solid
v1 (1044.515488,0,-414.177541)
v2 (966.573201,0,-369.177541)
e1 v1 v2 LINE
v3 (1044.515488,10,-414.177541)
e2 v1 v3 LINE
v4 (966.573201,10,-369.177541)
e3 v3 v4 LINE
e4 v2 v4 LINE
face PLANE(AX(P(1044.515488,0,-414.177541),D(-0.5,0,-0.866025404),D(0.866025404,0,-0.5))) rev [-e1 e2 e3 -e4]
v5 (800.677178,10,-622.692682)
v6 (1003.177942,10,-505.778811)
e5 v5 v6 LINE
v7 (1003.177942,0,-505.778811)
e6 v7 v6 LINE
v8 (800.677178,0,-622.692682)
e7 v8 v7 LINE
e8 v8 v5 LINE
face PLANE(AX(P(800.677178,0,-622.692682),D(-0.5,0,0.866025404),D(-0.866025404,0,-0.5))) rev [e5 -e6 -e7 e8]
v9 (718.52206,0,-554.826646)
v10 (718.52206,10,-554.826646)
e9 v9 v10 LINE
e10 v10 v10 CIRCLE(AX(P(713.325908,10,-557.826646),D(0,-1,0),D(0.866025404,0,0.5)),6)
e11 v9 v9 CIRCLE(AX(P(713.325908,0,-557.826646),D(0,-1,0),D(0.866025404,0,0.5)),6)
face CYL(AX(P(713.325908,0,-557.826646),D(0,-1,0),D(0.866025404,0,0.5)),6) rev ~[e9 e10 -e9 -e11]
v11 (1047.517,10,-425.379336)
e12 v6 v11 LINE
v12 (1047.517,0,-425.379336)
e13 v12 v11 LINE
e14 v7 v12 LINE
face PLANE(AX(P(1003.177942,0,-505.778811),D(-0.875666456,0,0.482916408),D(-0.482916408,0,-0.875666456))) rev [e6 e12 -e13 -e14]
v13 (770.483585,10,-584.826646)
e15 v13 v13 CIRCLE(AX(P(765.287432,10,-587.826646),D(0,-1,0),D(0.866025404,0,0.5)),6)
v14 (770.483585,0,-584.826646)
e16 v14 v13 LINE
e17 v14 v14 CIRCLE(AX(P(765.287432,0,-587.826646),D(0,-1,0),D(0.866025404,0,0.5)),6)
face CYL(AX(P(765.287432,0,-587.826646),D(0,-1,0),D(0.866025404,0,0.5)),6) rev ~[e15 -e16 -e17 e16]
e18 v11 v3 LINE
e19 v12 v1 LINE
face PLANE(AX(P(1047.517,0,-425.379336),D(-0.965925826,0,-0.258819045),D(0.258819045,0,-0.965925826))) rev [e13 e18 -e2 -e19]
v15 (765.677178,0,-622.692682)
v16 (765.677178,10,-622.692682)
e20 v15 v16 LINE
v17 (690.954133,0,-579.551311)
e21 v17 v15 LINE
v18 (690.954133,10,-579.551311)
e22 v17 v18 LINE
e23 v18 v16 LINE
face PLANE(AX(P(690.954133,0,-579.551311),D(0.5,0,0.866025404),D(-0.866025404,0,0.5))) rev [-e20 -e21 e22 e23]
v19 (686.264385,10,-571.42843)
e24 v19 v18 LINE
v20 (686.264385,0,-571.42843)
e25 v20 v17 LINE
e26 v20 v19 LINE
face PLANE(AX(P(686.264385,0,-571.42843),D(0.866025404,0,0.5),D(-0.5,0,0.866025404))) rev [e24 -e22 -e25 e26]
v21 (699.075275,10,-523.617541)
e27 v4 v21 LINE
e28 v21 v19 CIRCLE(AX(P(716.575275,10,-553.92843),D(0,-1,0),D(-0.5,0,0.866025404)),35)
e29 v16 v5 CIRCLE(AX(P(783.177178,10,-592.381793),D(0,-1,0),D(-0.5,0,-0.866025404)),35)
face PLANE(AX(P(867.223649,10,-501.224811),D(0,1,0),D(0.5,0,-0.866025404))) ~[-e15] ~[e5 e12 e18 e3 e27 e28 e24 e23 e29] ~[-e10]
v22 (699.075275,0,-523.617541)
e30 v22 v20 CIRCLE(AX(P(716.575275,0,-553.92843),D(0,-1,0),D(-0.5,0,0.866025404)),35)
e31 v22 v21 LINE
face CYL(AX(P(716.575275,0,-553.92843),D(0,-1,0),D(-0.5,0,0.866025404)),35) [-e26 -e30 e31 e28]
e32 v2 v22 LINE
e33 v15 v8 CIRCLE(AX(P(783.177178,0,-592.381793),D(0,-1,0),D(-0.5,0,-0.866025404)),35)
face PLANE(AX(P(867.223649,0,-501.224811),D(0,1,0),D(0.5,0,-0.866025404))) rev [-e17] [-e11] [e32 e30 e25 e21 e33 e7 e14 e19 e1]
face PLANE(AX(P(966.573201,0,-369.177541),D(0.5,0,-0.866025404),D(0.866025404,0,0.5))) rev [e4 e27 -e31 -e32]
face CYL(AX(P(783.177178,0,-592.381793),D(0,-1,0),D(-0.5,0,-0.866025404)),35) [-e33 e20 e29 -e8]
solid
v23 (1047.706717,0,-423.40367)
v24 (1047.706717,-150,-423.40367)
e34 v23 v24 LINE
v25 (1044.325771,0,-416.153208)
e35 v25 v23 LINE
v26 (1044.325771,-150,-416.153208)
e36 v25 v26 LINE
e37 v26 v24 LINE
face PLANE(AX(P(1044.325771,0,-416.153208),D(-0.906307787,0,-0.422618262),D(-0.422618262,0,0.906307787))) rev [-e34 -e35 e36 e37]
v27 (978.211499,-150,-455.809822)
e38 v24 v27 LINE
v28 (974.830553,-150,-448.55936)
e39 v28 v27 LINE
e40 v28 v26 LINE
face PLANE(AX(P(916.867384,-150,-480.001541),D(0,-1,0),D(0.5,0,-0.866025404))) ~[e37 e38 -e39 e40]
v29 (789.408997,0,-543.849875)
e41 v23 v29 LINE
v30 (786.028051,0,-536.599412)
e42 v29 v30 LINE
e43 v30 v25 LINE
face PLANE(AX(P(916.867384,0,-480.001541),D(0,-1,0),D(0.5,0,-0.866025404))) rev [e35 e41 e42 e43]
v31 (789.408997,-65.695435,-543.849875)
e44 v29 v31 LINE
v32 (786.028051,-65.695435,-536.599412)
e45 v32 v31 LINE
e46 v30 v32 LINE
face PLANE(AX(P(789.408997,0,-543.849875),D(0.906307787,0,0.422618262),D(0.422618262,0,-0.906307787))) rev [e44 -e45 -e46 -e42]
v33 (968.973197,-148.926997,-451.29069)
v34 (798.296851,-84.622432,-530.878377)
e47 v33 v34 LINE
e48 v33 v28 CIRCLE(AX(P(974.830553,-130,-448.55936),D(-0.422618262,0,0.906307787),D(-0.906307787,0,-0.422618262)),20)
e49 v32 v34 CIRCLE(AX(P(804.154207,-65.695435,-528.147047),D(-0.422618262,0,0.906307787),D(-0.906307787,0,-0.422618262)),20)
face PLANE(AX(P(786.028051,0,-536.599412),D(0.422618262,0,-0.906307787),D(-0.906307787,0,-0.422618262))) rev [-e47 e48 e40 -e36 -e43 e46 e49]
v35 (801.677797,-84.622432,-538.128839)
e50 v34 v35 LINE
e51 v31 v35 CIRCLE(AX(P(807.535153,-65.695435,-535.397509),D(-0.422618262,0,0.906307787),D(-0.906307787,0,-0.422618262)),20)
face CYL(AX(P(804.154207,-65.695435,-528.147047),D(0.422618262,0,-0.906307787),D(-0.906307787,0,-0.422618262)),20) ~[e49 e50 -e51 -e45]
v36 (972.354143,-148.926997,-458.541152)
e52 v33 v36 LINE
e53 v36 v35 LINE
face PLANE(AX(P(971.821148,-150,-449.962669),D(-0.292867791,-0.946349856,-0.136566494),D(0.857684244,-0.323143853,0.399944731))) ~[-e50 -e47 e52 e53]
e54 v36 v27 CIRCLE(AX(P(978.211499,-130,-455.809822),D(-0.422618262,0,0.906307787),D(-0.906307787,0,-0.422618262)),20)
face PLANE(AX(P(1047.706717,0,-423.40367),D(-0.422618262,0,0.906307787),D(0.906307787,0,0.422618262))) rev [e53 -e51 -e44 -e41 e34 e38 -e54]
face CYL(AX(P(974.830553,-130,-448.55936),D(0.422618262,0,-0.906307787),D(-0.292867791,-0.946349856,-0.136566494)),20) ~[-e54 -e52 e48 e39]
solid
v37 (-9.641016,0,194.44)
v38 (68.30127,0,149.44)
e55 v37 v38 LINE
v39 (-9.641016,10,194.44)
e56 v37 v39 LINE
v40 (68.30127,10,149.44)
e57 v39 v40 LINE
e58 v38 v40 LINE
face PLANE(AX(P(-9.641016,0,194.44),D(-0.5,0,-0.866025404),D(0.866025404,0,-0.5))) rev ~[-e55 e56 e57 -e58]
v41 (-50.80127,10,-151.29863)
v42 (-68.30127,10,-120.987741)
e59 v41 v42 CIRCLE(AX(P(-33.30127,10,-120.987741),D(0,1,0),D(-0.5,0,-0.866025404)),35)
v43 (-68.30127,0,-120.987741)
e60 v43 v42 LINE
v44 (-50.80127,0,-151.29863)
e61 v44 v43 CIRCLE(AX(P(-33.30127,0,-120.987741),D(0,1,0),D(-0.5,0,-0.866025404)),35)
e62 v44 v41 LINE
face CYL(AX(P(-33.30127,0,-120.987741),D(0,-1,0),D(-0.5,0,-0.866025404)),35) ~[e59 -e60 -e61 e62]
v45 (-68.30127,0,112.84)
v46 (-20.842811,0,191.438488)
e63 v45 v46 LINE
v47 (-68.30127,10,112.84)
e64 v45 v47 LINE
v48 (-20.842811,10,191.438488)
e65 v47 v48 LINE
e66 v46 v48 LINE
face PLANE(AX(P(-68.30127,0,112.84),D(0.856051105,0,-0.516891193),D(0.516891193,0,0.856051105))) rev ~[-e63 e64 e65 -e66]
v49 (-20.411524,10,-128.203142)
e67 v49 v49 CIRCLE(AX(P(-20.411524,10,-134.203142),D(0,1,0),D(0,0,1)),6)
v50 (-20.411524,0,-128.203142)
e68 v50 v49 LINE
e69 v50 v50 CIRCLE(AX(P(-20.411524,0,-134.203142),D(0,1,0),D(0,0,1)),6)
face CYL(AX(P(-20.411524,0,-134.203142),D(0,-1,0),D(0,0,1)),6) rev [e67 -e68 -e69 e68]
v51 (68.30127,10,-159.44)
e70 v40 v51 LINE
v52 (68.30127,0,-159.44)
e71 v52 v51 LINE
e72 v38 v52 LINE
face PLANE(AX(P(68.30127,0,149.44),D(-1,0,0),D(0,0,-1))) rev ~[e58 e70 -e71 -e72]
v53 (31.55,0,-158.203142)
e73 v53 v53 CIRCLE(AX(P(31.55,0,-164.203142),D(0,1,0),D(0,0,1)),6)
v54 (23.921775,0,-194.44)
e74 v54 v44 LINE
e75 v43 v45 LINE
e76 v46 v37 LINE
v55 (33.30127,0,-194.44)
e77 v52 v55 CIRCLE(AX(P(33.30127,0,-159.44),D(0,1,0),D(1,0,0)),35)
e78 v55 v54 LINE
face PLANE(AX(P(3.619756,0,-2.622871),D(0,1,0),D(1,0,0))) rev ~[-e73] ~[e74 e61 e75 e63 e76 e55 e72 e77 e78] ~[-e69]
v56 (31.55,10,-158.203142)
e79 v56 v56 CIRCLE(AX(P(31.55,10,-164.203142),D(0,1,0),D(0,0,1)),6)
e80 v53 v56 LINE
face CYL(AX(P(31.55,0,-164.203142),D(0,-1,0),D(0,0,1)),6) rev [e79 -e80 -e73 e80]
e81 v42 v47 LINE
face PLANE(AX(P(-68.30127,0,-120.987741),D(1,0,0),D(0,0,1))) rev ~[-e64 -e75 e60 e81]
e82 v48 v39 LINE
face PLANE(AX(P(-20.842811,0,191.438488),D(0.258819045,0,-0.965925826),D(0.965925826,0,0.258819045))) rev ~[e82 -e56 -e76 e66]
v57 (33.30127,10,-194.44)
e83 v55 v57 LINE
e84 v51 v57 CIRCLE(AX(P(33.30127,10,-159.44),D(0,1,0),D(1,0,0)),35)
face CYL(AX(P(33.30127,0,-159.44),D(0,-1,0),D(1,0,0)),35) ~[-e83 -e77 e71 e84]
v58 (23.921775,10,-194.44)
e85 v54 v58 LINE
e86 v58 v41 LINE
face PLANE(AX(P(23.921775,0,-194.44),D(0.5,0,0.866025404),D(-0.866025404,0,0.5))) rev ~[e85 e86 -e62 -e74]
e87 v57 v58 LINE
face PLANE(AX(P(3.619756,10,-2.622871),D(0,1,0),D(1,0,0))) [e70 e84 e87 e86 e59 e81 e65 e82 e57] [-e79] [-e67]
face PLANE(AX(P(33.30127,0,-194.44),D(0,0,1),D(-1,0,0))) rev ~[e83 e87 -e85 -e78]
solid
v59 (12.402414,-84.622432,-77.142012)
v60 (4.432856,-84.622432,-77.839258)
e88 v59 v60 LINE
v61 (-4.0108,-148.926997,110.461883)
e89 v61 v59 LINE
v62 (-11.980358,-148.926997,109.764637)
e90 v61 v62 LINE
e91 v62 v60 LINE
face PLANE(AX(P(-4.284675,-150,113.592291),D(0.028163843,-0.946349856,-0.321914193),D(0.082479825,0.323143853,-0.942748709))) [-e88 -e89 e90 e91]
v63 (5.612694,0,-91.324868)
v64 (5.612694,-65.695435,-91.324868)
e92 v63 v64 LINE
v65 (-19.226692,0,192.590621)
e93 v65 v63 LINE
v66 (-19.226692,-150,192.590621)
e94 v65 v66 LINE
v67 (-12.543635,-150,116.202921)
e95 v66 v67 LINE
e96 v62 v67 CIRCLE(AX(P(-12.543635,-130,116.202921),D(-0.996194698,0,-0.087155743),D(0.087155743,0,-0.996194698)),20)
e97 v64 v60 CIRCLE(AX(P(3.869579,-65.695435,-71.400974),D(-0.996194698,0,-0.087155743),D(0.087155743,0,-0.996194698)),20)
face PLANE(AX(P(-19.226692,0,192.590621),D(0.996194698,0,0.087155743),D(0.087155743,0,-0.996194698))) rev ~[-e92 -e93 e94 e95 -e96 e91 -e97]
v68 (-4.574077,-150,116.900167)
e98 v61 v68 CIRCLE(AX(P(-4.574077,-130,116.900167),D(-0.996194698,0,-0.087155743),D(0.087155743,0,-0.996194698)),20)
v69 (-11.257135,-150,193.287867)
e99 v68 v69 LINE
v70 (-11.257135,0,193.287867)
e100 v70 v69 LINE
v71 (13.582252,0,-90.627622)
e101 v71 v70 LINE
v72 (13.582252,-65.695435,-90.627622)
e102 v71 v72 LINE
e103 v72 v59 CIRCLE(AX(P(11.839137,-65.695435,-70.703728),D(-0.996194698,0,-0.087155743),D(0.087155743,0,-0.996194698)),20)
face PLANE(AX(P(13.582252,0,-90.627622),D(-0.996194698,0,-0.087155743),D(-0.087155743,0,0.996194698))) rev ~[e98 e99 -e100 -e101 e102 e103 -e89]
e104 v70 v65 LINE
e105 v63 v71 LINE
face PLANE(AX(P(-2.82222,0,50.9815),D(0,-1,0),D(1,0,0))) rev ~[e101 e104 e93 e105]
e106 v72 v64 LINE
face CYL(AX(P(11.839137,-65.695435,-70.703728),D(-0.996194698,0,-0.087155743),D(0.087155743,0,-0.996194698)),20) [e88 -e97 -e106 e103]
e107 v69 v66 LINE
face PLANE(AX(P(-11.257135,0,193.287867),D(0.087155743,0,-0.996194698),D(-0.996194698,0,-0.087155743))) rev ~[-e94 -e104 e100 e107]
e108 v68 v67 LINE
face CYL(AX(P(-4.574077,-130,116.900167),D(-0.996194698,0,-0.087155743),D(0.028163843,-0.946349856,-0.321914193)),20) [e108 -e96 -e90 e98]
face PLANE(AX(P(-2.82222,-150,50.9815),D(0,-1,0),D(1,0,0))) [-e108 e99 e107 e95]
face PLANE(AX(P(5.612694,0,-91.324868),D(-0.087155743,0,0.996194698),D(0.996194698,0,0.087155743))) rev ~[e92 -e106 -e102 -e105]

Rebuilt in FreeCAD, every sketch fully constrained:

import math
import FreeCAD as App
import Part
import Sketcher
from FreeCAD import Vector
Q = App.Units.Quantity


def edges_at(feature, points):
    """Names of the edges that pass closest to the given points."""
    edges = feature.Shape.Edges
    near = lambda p: min(range(len(edges)), key=lambda i: edges[i].distToShape(Part.Vertex(*p))[0])
    return sorted({f"Edge{near(p) + 1}" for p in points})


def add_polygon(sketch, points):
    """Adds a closed chain of lines whose ends are joined by coincident constraints."""
    first, n = sketch.GeometryCount, len(points)
    for a, b in zip(points, points[1:] + points[:1]):
        sketch.addGeometry(Part.LineSegment(App.Vector(*a, 0), App.Vector(*b, 0)), False)
    for i in range(n):
        sketch.addConstraint(Sketcher.Constraint("Coincident", first + i, 2, first + (i + 1) % n, 1))

doc = App.newDocument("Part")
body = doc.addObject("PartDesign::Body", "Body")

# Sketch on XZ plane
sketch1 = body.newObject("Sketcher::SketchObject", "Sketch")
sketch1.AttachmentSupport = (doc.getObject("XZ_Plane"), [""])
sketch1.MapMode = "FlatFace"
sketch1.addGeometry([
    Part.LineSegment(Vector(24, -194, 0), Vector(-51, -151, 0)),  # 0
    Part.ArcOfCircle(Part.Circle(Vector(-33, -121, 0), Vector(0, 0, 1), 35), math.radians(-180), math.radians(-120)),  # 1
    Part.LineSegment(Vector(-68, -121, 0), Vector(-68, 113, 0)),  # 2
    Part.LineSegment(Vector(-68, 113, 0), Vector(-21, 191, 0)),  # 3
    Part.LineSegment(Vector(-21, 191, 0), Vector(-10, 194, 0)),  # 4
    Part.LineSegment(Vector(-10, 194, 0), Vector(68, 149, 0)),  # 5
    Part.LineSegment(Vector(68, 149, 0), Vector(68, -159, 0)),  # 6
    Part.ArcOfCircle(Part.Circle(Vector(33, -159, 0), Vector(0, 0, 1), 35), math.radians(-90), math.radians(0)),  # 7
    Part.LineSegment(Vector(33, -194, 0), Vector(24, -194, 0)),  # 8
    Part.Circle(Vector(-20, -134, 0), Vector(0, 0, 1), 6),  # 9
    Part.Circle(Vector(32, -164, 0), Vector(0, 0, 1), 6),  # 10
], False)
sketch1.addConstraint([
    Sketcher.Constraint("Tangent", 0, 2, 1, 2),
    Sketcher.Constraint("Tangent", 1, 1, 2, 1),
    Sketcher.Constraint("Coincident", 2, 2, 3, 1),
    Sketcher.Constraint("Coincident", 3, 2, 4, 1),
    Sketcher.Constraint("Coincident", 4, 2, 5, 1),
    Sketcher.Constraint("Coincident", 5, 2, 6, 1),
    Sketcher.Constraint("Tangent", 6, 2, 7, 2),
    Sketcher.Constraint("Tangent", 7, 1, 8, 1),
    Sketcher.Constraint("Coincident", 8, 2, 0, 1),
    Sketcher.Constraint("Vertical", 2),
    Sketcher.Constraint("Vertical", 6),
    Sketcher.Constraint("Horizontal", 8),
    Sketcher.Constraint("Equal", 1, 7),
    Sketcher.Constraint("Equal", 9, 10),
    Sketcher.Constraint("Parallel", 0, 5),
    Sketcher.Constraint("Diameter", 9, 12.0),
    Sketcher.Constraint("Radius", 1, 35.0),
    Sketcher.Constraint("Angle", 0, Q("150 deg")),
    Sketcher.Constraint("Angle", 4, Q("15 deg")),
    Sketcher.Constraint("Distance", 5, 90.0),
    Sketcher.Constraint("DistanceY", 10, 3, 9, 3, 30.0),
    Sketcher.Constraint("DistanceY", 6, 2, 6, 1, 308.88),
    Sketcher.Constraint("DistanceY", 2, 2, 4, 2, 81.6),
    Sketcher.Constraint("DistanceY", 7, 3, -1, 1, 159.44),
    Sketcher.Constraint("DistanceX", -1, 1, 10, 3, 31.55),
    Sketcher.Constraint("DistanceY", 2, 1, 2, 2, 233.827741),
    Sketcher.Constraint("DistanceY", 9, 3, 1, 3, 13.215401),
    Sketcher.Constraint("DistanceX", 9, 3, 8, 2, 44.333299),
    Sketcher.Constraint("Distance", 4, 11.596952),
    Sketcher.Constraint("DistanceX", 8, 2, 8, 1, 9.379495),
    Sketcher.Constraint("DistanceX", 1, 3, -1, 1, 33.30127),
])
pad1 = body.newObject("PartDesign::Pad", "Pad")
pad1.Profile = sketch1
pad1.Length = 10
pad1.Reversed = True
body2 = doc.addObject("PartDesign::Body", "Body001")

# Sketch on XZ plane
sketch2 = body2.newObject("Sketcher::SketchObject", "Sketch001")
sketch2.AttachmentSupport = (doc.getObject("XZ_Plane001"), [""])
sketch2.MapMode = "FlatFace"
add_polygon(sketch2, [(-19, 193), (6, -91), (14, -91), (-11, 193)])  # lines 0-3
sketch2.addConstraint([
    Sketcher.Constraint("Perpendicular", 0, 1),
    Sketcher.Constraint("Perpendicular", 1, 2),
    Sketcher.Constraint("Perpendicular", 2, 3),
    Sketcher.Constraint("Angle", 0, Q("-85 deg")),
    Sketcher.Constraint("Distance", 0, 285.0),
    Sketcher.Constraint("Distance", 1, 8.0),
    Sketcher.Constraint("DistanceX", -1, 1, 1, 2, 13.582252),
    Sketcher.Constraint("DistanceY", 1, 2, -1, 1, 90.627622),
])
pad2 = body2.newObject("PartDesign::Pad", "Pad001")
pad2.Profile = sketch2
pad2.Length = 150

# Sketch on an angled plane
sketch3 = body2.newObject("Sketcher::SketchObject", "Sketch002")
sketch3.Placement = App.Placement(Vector(5.610419, 0, 0.490848), App.Rotation(Vector(0.087155743, 0, -0.996194698), Vector(0, 1, 0), Vector(0.996194698, 0, 0.087155743), "ZXY"))
add_polygon(sketch3, [(-114, -150), (91, -150), (91, -80)])  # lines 0-2
sketch3.addConstraint([
    Sketcher.Constraint("Horizontal", 0),
    Sketcher.Constraint("Vertical", 1),
    Sketcher.Constraint("DistanceX", 0, 1, 0, 2, 205.0),
    Sketcher.Constraint("DistanceY", 1, 1, 1, 2, 70.0),
    Sketcher.Constraint("DistanceY", 0, 2, -1, 1, 150.0),
    Sketcher.Constraint("DistanceX", -1, 1, 0, 2, 91.466528),
])
pocket1 = body2.newObject("PartDesign::Pocket", "Pocket")
pocket1.Profile = sketch3
pocket1.Length = 8
doc.recompute()

fillet = body2.newObject("PartDesign::Fillet", "Fillet")
fillet.Base = (pocket1, edges_at(pocket1, [(-8.269, -150, 113.244), (9.597, -80, -90.976)]))
fillet.Radius = 20
body3 = doc.addObject("PartDesign::Body", "Body002")
doc.recompute()

mirroring = doc.addObject("Part::Mirroring", "Mirroring")
mirroring.Source = body
mirroring.Base = Vector(435.6525, 0, -251.524088)
mirroring.Normal = Vector(-0.866025404, 0, 0.5)
body3.BaseFeature = mirroring
doc.recompute()
body4 = doc.addObject("PartDesign::Body", "Body003")
doc.recompute()

mirroring2 = doc.addObject("Part::Mirroring", "Mirroring001")
mirroring2.Source = body2
mirroring2.Base = Vector(435.6525, 0, -251.524088)
mirroring2.Normal = Vector(-0.866025404, 0, 0.5)
body4.BaseFeature = mirroring2
doc.recompute()
mirroring.Visibility = False
mirroring2.Visibility = False

doc.recompute()
